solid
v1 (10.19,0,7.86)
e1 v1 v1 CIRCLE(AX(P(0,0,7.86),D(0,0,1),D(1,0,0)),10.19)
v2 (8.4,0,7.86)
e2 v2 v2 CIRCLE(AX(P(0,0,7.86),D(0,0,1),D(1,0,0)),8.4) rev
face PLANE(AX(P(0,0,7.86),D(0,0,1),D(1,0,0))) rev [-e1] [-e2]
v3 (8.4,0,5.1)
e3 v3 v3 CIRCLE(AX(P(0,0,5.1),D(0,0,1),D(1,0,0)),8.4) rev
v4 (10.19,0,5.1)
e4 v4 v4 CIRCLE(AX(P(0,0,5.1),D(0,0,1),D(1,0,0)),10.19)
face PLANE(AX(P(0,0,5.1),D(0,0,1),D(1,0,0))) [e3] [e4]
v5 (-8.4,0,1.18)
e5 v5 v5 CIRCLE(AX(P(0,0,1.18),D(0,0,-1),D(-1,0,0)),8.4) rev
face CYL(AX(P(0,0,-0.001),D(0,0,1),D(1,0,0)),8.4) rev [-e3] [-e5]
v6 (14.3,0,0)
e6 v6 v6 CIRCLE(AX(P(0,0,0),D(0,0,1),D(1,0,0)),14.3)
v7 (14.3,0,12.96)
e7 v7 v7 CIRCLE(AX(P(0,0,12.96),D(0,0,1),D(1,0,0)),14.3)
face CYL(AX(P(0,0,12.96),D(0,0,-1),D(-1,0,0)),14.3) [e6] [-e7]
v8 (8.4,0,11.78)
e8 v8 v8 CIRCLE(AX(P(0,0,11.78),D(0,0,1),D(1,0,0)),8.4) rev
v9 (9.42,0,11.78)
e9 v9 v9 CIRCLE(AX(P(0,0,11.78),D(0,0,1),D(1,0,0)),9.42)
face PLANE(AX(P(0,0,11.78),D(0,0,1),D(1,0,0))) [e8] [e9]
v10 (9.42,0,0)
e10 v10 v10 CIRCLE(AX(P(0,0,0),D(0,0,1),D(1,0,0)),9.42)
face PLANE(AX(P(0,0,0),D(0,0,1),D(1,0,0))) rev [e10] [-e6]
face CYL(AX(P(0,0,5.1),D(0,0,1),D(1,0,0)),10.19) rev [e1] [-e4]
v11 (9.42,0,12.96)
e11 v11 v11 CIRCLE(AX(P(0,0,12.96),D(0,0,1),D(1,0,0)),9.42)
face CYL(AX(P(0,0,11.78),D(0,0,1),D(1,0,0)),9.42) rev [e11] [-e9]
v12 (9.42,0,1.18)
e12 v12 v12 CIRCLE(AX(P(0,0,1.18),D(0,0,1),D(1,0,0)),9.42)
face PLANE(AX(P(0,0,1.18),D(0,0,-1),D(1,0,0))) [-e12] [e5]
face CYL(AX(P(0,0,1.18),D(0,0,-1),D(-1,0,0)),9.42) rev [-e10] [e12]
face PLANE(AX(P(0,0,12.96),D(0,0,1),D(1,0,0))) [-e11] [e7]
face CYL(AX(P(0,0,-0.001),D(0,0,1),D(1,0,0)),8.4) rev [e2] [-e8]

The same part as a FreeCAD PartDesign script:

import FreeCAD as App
import Part
import Sketcher
Q = App.Units.Quantity

doc = App.newDocument("Part")
params = doc.addObject("Spreadsheet::Sheet", "Params")
for row, (alias, value) in enumerate([
    ("sketch1_diameter", "28.6 mm"),
    ("pad1_length", "12.96 mm"),
    ("sketch2_diameter", "16.8 mm"),
    ("sketch3_diameter", "18.84 mm"),
    ("pocket2_length", "1.18 mm"),
    ("sketch4_diameter", "20.38 mm"),
    ("pocket3_length", "2.76 mm"),
], start=1):
    params.set(f"A{row}", alias)
    params.set(f"B{row}", "=" + value)
    params.setAlias(f"B{row}", alias)

body = doc.addObject("PartDesign::Body", "Body")

# Sketch on XY plane
sketch1 = doc.addObject("Sketcher::SketchObject", "Sketch")
body.addObject(sketch1)
sketch1.AttachmentSupport = (doc.XY_Plane, [""])
sketch1.MapMode = "FlatFace"
sketch1.addGeometry(Part.Circle(App.Vector(0, 0, 0), App.Vector(0, 0, 1), 14.3), False)
sketch1.addConstraint(Sketcher.Constraint("Coincident", 0, 3, -1, 1))
sketch1.addConstraint(Sketcher.Constraint("Diameter", 0, Q("28.6 mm")))
sketch1.setExpression("Constraints[1]", "Params.sketch1_diameter")
pad1 = doc.addObject("PartDesign::Pad", "Pad")
body.addObject(pad1)
pad1.Profile = sketch1
pad1.setExpression("Length", "Params.pad1_length")

# Sketch on XY plane
sketch2 = doc.addObject("Sketcher::SketchObject", "Sketch001")
body.addObject(sketch2)
sketch2.AttachmentSupport = (doc.XY_Plane, [""])
sketch2.MapMode = "FlatFace"
sketch2.AttachmentOffset = App.Placement(App.Vector(0, 0, 12.96), App.Rotation())
sketch2.addGeometry(Part.Circle(App.Vector(0, 0, 0), App.Vector(0, 0, 1), 8.4), False)
sketch2.addConstraint(Sketcher.Constraint("Coincident", 0, 3, -1, 1))
sketch2.addConstraint(Sketcher.Constraint("Diameter", 0, Q("16.8 mm")))
sketch2.setExpression("Constraints[1]", "Params.sketch2_diameter")
pocket1 = doc.addObject("PartDesign::Pocket", "Pocket")
body.addObject(pocket1)
pocket1.Profile = sketch2
pocket1.Type = "UpToFirst"

# Sketch on XY plane
sketch3 = doc.addObject("Sketcher::SketchObject", "Sketch002")
body.addObject(sketch3)
sketch3.AttachmentSupport = (doc.XY_Plane, [""])
sketch3.MapMode = "FlatFace"
sketch3.AttachmentOffset = App.Placement(App.Vector(0, 0, 12.96), App.Rotation())
sketch3.addGeometry(Part.Circle(App.Vector(0, 0, 0), App.Vector(0, 0, 1), 9.42), False)
sketch3.addConstraint(Sketcher.Constraint("Coincident", 0, 3, -1, 1))
sketch3.addConstraint(Sketcher.Constraint("Diameter", 0, Q("18.84 mm")))
sketch3.setExpression("Constraints[1]", "Params.sketch3_diameter")
pocket2 = doc.addObject("PartDesign::Pocket", "Pocket001")
body.addObject(pocket2)
pocket2.Profile = sketch3
pocket2.setExpression("Length", "Params.pocket2_length")
doc.recompute()

datumplane = doc.addObject("PartDesign::Plane", "DatumPlane")
body.addObject(datumplane)
datumplane.AttachmentSupport = (doc.XY_Plane, [""])
datumplane.MapMode = "FlatFace"
datumplane.AttachmentOffset = App.Placement(App.Vector(0, 0, 6.48), App.Rotation())
mirrored = doc.addObject("PartDesign::Mirrored", "Mirrored")
body.addObject(mirrored)
mirrored.Originals = [pocket2]
mirrored.MirrorPlane = (datumplane, [""])
body.Tip = mirrored

# Sketch on XY plane
sketch4 = doc.addObject("Sketcher::SketchObject", "Sketch003")
body.addObject(sketch4)
sketch4.AttachmentSupport = (doc.XY_Plane, [""])
sketch4.MapMode = "FlatFace"
sketch4.AttachmentOffset = App.Placement(App.Vector(0, 0, 6.48), App.Rotation())
sketch4.addGeometry(Part.Circle(App.Vector(0, 0, 0), App.Vector(0, 0, 1), 10.19), False)
sketch4.addConstraint(Sketcher.Constraint("Coincident", 0, 3, -1, 1))
sketch4.addConstraint(Sketcher.Constraint("Diameter", 0, Q("20.38 mm")))
sketch4.setExpression("Constraints[1]", "Params.sketch4_diameter")
pocket3 = doc.addObject("PartDesign::Pocket", "Pocket002")
body.addObject(pocket3)
pocket3.Profile = sketch4
pocket3.setExpression("Length", "Params.pocket3_length")
pocket3.Midplane = True

doc.recompute()
